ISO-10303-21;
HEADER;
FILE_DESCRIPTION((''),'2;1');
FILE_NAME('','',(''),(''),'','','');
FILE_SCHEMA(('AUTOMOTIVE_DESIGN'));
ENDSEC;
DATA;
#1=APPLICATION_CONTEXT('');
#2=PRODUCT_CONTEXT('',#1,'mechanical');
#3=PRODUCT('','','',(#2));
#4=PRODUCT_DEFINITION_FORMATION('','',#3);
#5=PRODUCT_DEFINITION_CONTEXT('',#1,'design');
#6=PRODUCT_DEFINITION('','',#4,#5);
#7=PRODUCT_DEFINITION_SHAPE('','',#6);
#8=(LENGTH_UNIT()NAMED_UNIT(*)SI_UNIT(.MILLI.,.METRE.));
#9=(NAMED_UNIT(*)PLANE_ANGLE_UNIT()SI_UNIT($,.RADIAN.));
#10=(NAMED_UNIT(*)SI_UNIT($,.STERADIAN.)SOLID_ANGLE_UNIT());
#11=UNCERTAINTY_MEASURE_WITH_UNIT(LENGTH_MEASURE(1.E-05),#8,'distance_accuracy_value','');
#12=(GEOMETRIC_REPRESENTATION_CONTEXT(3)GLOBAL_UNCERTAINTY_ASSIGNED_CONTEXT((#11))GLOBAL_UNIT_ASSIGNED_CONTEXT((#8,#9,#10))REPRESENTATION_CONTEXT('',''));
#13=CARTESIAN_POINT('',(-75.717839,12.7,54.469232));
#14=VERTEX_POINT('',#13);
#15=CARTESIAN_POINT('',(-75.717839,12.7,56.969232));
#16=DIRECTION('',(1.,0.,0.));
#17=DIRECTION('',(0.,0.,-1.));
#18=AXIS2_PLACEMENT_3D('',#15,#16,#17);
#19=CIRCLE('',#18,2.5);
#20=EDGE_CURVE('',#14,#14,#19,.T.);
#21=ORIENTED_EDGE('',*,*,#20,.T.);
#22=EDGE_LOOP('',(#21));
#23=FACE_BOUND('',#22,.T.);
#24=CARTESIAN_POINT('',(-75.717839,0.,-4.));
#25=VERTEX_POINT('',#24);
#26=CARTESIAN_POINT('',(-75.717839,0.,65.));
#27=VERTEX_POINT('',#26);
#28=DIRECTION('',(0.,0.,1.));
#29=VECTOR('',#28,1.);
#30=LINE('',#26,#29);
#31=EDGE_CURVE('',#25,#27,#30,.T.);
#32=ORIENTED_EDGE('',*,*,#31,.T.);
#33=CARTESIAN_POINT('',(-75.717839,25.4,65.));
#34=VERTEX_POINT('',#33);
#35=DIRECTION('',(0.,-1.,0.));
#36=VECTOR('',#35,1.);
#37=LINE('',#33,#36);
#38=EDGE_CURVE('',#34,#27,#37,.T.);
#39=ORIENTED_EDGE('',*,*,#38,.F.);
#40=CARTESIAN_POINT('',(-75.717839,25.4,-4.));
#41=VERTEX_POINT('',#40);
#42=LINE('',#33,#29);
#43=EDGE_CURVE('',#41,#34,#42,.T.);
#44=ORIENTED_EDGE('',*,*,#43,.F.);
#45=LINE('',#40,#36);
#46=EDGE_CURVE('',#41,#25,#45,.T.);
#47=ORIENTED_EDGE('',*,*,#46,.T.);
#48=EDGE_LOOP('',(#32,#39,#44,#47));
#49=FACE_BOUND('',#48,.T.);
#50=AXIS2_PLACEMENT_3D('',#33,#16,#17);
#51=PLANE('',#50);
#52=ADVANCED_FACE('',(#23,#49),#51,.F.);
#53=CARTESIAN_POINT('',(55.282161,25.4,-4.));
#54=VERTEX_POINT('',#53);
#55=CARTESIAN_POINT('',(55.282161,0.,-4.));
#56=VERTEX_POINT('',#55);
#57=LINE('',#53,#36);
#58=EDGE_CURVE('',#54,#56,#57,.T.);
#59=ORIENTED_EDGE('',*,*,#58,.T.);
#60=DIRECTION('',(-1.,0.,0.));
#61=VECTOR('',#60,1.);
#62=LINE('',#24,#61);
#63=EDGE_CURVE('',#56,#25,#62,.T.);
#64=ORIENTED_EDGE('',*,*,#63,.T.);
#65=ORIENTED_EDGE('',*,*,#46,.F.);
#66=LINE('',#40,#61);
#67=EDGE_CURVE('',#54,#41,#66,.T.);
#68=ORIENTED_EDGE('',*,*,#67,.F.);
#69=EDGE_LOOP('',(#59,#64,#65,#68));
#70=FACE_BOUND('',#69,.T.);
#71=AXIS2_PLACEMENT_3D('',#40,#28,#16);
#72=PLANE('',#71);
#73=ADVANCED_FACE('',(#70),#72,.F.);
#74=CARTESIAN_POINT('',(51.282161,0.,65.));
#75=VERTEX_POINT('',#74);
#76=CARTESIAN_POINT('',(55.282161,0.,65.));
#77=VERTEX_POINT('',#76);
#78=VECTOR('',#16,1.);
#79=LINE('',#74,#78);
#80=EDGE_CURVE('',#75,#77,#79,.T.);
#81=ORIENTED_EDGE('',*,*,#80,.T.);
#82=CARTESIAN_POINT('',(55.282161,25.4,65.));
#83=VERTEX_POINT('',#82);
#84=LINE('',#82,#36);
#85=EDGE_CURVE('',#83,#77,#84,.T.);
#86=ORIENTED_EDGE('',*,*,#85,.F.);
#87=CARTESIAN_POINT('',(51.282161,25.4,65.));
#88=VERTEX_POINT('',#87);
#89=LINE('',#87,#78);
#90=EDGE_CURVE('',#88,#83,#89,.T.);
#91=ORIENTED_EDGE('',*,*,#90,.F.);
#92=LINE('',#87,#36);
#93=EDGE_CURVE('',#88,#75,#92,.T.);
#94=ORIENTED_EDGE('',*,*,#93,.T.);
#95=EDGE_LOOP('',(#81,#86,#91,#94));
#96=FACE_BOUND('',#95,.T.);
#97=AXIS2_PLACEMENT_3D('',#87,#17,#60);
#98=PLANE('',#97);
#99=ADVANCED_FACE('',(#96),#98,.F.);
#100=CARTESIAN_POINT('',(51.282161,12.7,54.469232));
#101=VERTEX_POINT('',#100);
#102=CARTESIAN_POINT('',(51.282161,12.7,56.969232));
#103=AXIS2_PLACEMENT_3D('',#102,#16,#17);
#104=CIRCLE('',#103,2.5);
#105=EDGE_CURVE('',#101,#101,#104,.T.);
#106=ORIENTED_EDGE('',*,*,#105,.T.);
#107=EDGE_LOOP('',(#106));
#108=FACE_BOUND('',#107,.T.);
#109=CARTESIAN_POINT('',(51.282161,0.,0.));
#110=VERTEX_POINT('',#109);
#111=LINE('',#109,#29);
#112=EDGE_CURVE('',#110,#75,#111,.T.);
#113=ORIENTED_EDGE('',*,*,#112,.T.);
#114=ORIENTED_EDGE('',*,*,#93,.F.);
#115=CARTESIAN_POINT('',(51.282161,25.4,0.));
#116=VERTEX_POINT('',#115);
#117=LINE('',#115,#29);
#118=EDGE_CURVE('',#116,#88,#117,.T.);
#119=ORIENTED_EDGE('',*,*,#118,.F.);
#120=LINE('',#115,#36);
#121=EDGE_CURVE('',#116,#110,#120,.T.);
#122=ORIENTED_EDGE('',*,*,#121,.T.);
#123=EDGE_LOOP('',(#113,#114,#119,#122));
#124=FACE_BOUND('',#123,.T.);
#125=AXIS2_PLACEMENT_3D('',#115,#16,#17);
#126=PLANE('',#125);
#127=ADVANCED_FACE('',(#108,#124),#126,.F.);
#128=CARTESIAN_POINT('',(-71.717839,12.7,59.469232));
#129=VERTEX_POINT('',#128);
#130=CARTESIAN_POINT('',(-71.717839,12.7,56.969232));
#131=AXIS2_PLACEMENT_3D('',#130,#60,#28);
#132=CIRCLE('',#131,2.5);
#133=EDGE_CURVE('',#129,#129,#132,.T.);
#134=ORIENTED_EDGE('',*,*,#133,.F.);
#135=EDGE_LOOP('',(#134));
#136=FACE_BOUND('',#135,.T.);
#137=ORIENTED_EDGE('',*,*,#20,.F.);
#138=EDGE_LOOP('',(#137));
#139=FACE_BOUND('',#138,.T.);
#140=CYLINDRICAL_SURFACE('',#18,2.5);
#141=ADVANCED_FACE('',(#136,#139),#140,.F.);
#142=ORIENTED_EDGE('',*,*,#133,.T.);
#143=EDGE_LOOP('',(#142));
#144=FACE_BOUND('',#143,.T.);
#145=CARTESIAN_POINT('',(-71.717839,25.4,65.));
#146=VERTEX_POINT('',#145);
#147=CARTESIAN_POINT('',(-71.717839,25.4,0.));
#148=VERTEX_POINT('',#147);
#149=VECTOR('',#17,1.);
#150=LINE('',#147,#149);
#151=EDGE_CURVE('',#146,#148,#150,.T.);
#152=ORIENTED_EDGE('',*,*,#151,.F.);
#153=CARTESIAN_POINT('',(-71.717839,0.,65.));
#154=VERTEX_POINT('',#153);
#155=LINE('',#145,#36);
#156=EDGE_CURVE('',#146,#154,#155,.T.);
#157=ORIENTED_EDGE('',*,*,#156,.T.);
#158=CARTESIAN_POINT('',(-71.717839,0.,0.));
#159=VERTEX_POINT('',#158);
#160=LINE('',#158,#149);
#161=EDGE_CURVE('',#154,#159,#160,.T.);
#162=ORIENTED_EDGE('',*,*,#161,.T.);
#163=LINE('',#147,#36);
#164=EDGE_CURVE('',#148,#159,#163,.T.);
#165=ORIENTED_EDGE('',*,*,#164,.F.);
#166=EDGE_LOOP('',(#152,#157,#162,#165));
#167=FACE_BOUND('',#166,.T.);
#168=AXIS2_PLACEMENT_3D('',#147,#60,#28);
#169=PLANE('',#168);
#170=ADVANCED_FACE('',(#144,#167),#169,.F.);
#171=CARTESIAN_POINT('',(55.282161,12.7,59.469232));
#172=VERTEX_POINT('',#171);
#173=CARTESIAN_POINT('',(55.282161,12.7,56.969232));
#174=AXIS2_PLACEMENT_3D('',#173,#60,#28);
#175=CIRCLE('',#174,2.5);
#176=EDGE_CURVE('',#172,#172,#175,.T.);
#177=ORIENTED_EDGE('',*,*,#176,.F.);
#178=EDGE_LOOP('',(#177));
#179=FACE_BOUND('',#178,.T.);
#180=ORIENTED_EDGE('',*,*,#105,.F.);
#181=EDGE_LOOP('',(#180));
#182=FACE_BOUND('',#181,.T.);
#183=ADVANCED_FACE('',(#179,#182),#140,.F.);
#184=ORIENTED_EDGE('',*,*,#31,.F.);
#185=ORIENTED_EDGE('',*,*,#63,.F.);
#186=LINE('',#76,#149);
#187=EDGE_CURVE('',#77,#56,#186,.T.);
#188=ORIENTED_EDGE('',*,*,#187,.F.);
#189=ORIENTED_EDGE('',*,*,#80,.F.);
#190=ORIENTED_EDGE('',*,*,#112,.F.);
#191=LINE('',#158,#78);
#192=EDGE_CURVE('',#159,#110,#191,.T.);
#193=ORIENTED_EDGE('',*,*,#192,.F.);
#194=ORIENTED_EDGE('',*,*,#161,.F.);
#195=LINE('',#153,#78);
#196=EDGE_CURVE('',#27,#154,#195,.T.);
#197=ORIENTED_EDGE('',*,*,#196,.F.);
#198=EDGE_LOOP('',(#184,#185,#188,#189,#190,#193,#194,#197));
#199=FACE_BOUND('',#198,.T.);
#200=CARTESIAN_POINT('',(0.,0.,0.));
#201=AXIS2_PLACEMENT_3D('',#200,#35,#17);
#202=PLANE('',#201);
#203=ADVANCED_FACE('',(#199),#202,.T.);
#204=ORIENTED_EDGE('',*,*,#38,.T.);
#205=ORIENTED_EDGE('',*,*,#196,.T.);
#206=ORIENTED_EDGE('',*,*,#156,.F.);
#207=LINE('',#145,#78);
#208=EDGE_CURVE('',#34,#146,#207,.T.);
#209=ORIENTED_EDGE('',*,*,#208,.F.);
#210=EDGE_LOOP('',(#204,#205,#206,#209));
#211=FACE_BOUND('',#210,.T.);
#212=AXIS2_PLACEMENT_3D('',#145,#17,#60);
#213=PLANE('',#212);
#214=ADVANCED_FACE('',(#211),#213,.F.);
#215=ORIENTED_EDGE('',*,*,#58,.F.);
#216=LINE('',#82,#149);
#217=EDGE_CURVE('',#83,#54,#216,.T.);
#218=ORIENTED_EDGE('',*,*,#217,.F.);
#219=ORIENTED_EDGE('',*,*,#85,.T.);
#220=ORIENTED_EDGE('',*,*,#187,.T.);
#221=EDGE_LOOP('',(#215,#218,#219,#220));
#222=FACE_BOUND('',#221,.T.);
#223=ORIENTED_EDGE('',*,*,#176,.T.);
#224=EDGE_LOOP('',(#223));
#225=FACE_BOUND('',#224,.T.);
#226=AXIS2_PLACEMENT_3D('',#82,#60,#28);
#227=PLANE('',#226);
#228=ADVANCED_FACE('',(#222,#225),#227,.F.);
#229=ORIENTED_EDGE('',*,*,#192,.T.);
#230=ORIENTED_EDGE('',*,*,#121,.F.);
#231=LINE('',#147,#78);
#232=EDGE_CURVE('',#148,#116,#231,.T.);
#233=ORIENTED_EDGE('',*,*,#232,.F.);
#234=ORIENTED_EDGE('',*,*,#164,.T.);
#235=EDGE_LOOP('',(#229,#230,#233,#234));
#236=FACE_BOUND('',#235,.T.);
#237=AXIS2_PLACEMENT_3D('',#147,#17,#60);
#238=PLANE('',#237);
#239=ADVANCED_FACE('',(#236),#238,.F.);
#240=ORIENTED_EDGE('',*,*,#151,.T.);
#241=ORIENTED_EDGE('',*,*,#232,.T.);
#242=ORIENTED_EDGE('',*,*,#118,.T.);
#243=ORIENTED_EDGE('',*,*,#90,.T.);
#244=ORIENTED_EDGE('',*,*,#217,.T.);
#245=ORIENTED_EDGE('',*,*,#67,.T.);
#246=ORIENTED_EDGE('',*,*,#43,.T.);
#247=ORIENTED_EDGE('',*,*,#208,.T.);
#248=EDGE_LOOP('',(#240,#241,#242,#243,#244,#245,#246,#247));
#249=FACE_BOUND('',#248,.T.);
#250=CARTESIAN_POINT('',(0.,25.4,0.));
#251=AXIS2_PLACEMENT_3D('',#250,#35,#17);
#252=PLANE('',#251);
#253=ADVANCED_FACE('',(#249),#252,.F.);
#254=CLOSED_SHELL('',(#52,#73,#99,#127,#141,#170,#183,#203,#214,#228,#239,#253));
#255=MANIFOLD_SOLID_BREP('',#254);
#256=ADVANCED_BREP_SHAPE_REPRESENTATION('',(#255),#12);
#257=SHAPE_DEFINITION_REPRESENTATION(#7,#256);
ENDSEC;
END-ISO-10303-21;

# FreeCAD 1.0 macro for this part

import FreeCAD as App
import Part
import Sketcher

V = App.Vector
Q = App.Units.Quantity

doc = App.newDocument("Part")
body = doc.addObject("PartDesign::Body", "Body")

# Sketch on XZ plane
sketch1 = body.newObject("Sketcher::SketchObject", "Sketch")
sketch1.AttachmentSupport = (doc.getObject("XZ_Plane"), [""])
sketch1.MapMode = "FlatFace"
sketch1.addGeometry(Part.LineSegment(V(-71.7, 0, 0), V(51.3, 0, 0)), False)
sketch1.addGeometry(Part.LineSegment(V(51.3, 0, 0), V(51.3, 65, 0)), False)
sketch1.addGeometry(Part.LineSegment(V(51.3, 65, 0), V(55.3, 65, 0)), False)
sketch1.addGeometry(Part.LineSegment(V(55.3, 65, 0), V(55.3, -4, 0)), False)
sketch1.addGeometry(Part.LineSegment(V(55.3, -4, 0), V(-75.7, -4, 0)), False)
sketch1.addGeometry(Part.LineSegment(V(-75.7, -4, 0), V(-75.7, 65, 0)), False)
sketch1.addGeometry(Part.LineSegment(V(-75.7, 65, 0), V(-71.7, 65, 0)), False)
sketch1.addGeometry(Part.LineSegment(V(-71.7, 65, 0), V(-71.7, 0, 0)), False)
sketch1.addConstraint(Sketcher.Constraint("Coincident", 0, 2, 1, 1))
sketch1.addConstraint(Sketcher.Constraint("Coincident", 1, 2, 2, 1))
sketch1.addConstraint(Sketcher.Constraint("Coincident", 2, 2, 3, 1))
sketch1.addConstraint(Sketcher.Constraint("Coincident", 3, 2, 4, 1))
sketch1.addConstraint(Sketcher.Constraint("Coincident", 4, 2, 5, 1))
sketch1.addConstraint(Sketcher.Constraint("Coincident", 5, 2, 6, 1))
sketch1.addConstraint(Sketcher.Constraint("Coincident", 6, 2, 7, 1))
sketch1.addConstraint(Sketcher.Constraint("Coincident", 7, 2, 0, 1))
sketch1.addConstraint(Sketcher.Constraint("Horizontal", 0))
sketch1.addConstraint(Sketcher.Constraint("Vertical", 1))
sketch1.addConstraint(Sketcher.Constraint("Horizontal", 2))
sketch1.addConstraint(Sketcher.Constraint("Vertical", 3))
sketch1.addConstraint(Sketcher.Constraint("Horizontal", 4))
sketch1.addConstraint(Sketcher.Constraint("Vertical", 5))
sketch1.addConstraint(Sketcher.Constraint("Horizontal", 6))
sketch1.addConstraint(Sketcher.Constraint("Vertical", 7))
sketch1.addConstraint(Sketcher.Constraint("PointOnObject", 0, 2, -1))
sketch1.addConstraint(Sketcher.Constraint("Horizontal", 2, 2, 5, 2))
sketch1.addConstraint(Sketcher.Constraint("Equal", 2, 6))
sketch1.addConstraint(Sketcher.Constraint("DistanceX", 0, 1, 0, 2, Q("123 mm")))
sketch1.addConstraint(Sketcher.Constraint("DistanceX", 2, 1, 2, 2, Q("4 mm")))
sketch1.addConstraint(Sketcher.Constraint("DistanceY", 1, 1, 1, 2, Q("65 mm")))
sketch1.addConstraint(Sketcher.Constraint("DistanceY", 3, 2, 3, 1, Q("69 mm")))
sketch1.addConstraint(Sketcher.Constraint("DistanceX", -1, 1, 0, 2, Q("51.282161 mm")))
pad1 = body.newObject("PartDesign::Pad", "Pad")
pad1.Profile = sketch1
pad1.Length = 25.4
pad1.Reversed = True

# Sketch on YZ plane
sketch2 = body.newObject("Sketcher::SketchObject", "Sketch001")
sketch2.AttachmentSupport = (doc.getObject("YZ_Plane"), [""])
sketch2.MapMode = "FlatFace"
sketch2.AttachmentOffset = App.Placement(V(0, 0, 55.282161), App.Rotation())
sketch2.addGeometry(Part.Circle(V(12.7, 57, 0), V(0, 0, 1), 2.5), False)
sketch2.addConstraint(Sketcher.Constraint("Diameter", 0, Q("5 mm")))
sketch2.addConstraint(Sketcher.Constraint("DistanceX", -1, 1, 0, 3, Q("12.7 mm")))
sketch2.addConstraint(Sketcher.Constraint("DistanceY", -1, 1, 0, 3, Q("56.969232 mm")))
pocket1 = body.newObject("PartDesign::Pocket", "Pocket")
pocket1.Profile = sketch2
pocket1.Type = "ThroughAll"
pocket1.Midplane = True

doc.recompute()
